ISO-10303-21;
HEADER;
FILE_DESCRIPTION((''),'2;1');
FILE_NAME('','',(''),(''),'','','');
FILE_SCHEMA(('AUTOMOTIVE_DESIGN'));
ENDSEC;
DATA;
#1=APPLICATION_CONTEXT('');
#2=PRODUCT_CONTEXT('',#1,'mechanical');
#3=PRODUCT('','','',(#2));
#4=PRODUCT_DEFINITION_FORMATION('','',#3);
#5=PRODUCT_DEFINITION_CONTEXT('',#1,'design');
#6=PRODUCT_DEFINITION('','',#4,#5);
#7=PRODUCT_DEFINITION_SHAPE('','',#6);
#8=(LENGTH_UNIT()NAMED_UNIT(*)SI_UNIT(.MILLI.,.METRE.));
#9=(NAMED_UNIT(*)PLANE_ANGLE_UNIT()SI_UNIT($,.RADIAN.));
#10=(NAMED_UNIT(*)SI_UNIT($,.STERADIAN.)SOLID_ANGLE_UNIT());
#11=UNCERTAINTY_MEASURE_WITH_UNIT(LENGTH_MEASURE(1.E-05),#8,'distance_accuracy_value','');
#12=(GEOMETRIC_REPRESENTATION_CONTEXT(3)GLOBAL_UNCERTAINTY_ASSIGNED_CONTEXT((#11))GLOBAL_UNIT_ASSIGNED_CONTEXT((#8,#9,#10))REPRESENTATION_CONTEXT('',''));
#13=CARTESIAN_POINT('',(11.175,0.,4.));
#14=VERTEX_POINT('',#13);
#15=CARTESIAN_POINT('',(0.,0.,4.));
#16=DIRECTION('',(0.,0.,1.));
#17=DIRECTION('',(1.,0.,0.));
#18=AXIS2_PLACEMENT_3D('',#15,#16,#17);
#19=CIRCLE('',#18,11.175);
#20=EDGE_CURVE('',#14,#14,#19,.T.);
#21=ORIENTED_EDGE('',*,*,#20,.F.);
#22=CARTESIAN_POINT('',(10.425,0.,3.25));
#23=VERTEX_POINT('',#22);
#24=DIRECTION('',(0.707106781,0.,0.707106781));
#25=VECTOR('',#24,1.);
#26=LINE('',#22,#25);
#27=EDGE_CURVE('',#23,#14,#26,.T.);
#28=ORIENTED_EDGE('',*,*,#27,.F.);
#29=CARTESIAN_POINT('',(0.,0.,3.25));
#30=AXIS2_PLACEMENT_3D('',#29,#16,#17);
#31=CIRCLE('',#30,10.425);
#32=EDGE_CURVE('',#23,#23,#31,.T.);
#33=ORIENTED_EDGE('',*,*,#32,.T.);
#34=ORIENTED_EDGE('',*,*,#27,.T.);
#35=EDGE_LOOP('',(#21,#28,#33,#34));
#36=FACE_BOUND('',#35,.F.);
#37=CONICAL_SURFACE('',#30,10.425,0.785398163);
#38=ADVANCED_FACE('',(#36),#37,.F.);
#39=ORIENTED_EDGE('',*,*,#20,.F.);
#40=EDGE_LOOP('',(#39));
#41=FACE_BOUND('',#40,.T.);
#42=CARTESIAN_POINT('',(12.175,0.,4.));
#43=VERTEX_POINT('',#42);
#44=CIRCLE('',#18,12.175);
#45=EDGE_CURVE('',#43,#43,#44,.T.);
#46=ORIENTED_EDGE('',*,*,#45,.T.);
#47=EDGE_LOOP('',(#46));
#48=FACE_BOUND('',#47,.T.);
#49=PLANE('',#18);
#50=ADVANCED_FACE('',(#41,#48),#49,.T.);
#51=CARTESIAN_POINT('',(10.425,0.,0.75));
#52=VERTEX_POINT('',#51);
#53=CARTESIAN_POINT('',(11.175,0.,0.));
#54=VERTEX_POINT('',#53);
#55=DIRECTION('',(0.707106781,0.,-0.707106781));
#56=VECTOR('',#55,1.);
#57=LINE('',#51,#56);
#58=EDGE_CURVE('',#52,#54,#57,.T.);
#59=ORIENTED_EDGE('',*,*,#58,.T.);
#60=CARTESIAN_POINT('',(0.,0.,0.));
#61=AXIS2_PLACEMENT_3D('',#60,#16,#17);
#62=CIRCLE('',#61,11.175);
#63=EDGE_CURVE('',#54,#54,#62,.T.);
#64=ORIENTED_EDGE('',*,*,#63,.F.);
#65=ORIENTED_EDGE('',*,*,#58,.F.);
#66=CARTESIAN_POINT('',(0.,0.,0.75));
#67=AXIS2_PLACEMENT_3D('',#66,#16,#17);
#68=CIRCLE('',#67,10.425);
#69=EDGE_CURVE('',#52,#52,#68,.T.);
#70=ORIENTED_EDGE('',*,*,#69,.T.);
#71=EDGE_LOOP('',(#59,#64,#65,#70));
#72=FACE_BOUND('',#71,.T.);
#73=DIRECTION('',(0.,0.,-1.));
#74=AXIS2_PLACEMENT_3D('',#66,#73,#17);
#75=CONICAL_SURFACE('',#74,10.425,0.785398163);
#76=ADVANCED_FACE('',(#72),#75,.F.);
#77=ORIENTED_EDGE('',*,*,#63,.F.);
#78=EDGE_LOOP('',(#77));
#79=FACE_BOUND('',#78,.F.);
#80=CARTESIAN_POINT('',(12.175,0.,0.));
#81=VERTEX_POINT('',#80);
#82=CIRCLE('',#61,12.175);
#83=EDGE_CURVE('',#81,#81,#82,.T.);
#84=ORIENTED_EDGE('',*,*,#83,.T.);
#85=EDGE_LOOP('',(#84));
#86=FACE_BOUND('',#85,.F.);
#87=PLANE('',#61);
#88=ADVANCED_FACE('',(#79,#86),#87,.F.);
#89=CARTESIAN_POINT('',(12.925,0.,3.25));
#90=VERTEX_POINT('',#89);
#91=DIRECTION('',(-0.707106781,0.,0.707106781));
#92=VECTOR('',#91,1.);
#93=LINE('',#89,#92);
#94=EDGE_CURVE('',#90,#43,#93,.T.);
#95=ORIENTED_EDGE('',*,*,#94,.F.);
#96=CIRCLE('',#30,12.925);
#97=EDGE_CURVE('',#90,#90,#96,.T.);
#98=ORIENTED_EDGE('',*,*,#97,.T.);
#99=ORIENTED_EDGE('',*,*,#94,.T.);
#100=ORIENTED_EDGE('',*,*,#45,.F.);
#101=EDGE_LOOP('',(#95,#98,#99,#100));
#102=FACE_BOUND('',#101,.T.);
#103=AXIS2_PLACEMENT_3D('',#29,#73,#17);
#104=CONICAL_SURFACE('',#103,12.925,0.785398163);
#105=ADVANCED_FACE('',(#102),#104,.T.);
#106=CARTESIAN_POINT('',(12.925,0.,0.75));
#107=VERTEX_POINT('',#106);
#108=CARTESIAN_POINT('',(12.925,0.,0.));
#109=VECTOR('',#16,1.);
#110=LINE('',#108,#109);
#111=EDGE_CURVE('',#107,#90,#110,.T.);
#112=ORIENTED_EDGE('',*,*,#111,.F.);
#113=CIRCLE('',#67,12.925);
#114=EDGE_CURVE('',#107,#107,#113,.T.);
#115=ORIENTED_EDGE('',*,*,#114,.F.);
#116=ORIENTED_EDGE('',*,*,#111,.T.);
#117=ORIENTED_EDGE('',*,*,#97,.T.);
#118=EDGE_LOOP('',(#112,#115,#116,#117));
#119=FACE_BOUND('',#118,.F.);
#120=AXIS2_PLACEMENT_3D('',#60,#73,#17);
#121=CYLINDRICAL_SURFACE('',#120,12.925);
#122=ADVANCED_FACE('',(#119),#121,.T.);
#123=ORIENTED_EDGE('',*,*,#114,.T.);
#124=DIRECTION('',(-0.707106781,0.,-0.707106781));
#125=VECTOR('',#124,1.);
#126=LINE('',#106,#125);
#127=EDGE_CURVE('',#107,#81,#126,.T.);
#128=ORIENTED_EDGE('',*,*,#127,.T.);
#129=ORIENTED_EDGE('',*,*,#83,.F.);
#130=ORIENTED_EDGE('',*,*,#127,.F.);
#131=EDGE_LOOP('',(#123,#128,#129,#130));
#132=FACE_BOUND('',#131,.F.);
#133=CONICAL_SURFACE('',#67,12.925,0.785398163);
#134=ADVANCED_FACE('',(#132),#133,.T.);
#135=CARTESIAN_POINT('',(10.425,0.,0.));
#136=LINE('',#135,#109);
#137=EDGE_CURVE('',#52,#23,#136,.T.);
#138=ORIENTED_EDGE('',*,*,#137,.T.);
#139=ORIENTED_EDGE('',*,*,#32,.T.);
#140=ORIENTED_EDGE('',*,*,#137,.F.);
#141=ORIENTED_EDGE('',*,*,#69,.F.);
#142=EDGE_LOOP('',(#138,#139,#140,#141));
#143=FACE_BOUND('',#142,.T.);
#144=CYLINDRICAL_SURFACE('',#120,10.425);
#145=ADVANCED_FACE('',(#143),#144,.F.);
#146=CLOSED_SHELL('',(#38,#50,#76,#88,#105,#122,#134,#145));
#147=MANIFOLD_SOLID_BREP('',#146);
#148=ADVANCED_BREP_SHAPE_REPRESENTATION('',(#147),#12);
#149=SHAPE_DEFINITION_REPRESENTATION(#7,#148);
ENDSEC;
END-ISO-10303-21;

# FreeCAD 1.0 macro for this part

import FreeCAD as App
import Part
import Sketcher
from FreeCAD import Vector


def edges_at(feature, points):
    """Names of the edges that pass closest to the given points."""
    edges = feature.Shape.Edges
    near = lambda p: min(range(len(edges)), key=lambda i: edges[i].distToShape(Part.Vertex(*p))[0])
    return sorted({f"Edge{near(p) + 1}" for p in points})

doc = App.newDocument("Part")
params = doc.addObject("Spreadsheet::Sheet", "Params")
for row, (alias, value) in enumerate([
    ("sketch1_diameter", "25.85 mm"),
    ("sketch1_diameter2", "20.85 mm"),
    ("pad1_length", "4 mm"),
    ("chamfer_size", "0.75 mm"),
], start=1):
    params.set(f"A{row}", alias)
    params.set(f"B{row}", "=" + value)
    params.setAlias(f"B{row}", alias)

body = doc.addObject("PartDesign::Body", "Body")

# Sketch on XY plane
sketch1 = body.newObject("Sketcher::SketchObject", "Sketch")
sketch1.AttachmentSupport = (doc.getObject("XY_Plane"), [""])
sketch1.MapMode = "FlatFace"
sketch1.addGeometry([
    Part.Circle(Vector(0, 0, 0), Vector(0, 0, 1), 13),
    Part.Circle(Vector(0, 0, 0), Vector(0, 0, 1), 10),
], False)
sketch1.addConstraint([
    Sketcher.Constraint("Coincident", 0, 3, -1, 1),
    Sketcher.Constraint("Coincident", 1, 3, -1, 1),
    Sketcher.Constraint("Diameter", 0, 25.85),
    Sketcher.Constraint("Diameter", 1, 20.85),
])
sketch1.setExpression("Constraints[2]", "Params.sketch1_diameter")
sketch1.setExpression("Constraints[3]", "Params.sketch1_diameter2")
pad1 = body.newObject("PartDesign::Pad", "Pad")
pad1.Profile = sketch1
pad1.setExpression("Length", "Params.pad1_length")
doc.recompute()

chamfer = body.newObject("PartDesign::Chamfer", "Chamfer")
chamfer.Base = (pad1, edges_at(pad1, [
    (-12.925, 0, 0),
    (-12.925, 0, 4),
    (-10.425, 0, 4),
    (-10.425, 0, 0),
]))
chamfer.setExpression("Size", "Params.chamfer_size")

doc.recompute()
